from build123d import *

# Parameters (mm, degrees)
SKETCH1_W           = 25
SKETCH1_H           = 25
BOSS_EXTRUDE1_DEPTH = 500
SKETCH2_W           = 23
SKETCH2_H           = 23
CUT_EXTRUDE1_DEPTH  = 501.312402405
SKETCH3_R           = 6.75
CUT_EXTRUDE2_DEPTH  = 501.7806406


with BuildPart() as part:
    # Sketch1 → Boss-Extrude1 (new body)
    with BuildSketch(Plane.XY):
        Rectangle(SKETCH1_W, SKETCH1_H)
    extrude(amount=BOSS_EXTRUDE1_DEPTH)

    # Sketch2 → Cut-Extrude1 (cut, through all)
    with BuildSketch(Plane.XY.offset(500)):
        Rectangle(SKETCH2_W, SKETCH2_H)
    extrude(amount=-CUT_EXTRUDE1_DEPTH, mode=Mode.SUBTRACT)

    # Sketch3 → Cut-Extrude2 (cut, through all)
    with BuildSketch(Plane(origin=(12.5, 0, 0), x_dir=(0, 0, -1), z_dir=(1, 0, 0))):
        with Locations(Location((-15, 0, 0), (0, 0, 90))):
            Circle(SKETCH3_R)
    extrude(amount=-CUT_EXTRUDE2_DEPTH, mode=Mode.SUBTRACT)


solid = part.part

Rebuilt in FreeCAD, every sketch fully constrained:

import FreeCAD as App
import Part
import Sketcher
Q = App.Units.Quantity

doc = App.newDocument("Part")
body = doc.addObject("PartDesign::Body", "Body")

sketch1 = body.newObject("Sketcher::SketchObject", "Sketch")
sketch1.AttachmentSupport = (doc.getObject("XY_Plane"), [""])
sketch1.MapMode = "FlatFace"
sketch1.addGeometry([
    Part.LineSegment(App.Vector(-12, 12, 0), App.Vector(-12, -12, 0)),
    Part.LineSegment(App.Vector(-12, -12, 0), App.Vector(12, -12, 0)),
    Part.LineSegment(App.Vector(12, -12, 0), App.Vector(12, 12, 0)),
    Part.LineSegment(App.Vector(12, 12, 0), App.Vector(-12, 12, 0)),
], False)
sketch1.addConstraint([
    Sketcher.Constraint("Coincident", 0, 2, 1, 1),
    Sketcher.Constraint("Coincident", 1, 2, 2, 1),
    Sketcher.Constraint("Coincident", 2, 2, 3, 1),
    Sketcher.Constraint("Coincident", 3, 2, 0, 1),
    Sketcher.Constraint("Vertical", 0),
    Sketcher.Constraint("Horizontal", 1),
    Sketcher.Constraint("Vertical", 2),
    Sketcher.Constraint("Horizontal", 3),
    Sketcher.Constraint("Symmetric", 0, 2, 2, 2, -1, 1),
    Sketcher.Constraint("Equal", 3, 0),
    Sketcher.Constraint("DistanceX", 1, 1, 1, 2, Q("25 mm")),
])
pad1 = body.newObject("PartDesign::Pad", "Pad")
pad1.Profile = sketch1
pad1.Length = 500

sketch2 = body.newObject("Sketcher::SketchObject", "Sketch001")
sketch2.AttachmentSupport = (doc.getObject("XY_Plane"), [""])
sketch2.MapMode = "FlatFace"
sketch2.AttachmentOffset = App.Placement(App.Vector(0, 0, 500), App.Rotation())
sketch2.addGeometry([
    Part.LineSegment(App.Vector(-12, 12, 0), App.Vector(-12, -12, 0)),
    Part.LineSegment(App.Vector(-12, -12, 0), App.Vector(12, -12, 0)),
    Part.LineSegment(App.Vector(12, -12, 0), App.Vector(12, 12, 0)),
    Part.LineSegment(App.Vector(12, 12, 0), App.Vector(-12, 12, 0)),
], False)
sketch2.addConstraint([
    Sketcher.Constraint("Coincident", 0, 2, 1, 1),
    Sketcher.Constraint("Coincident", 1, 2, 2, 1),
    Sketcher.Constraint("Coincident", 2, 2, 3, 1),
    Sketcher.Constraint("Coincident", 3, 2, 0, 1),
    Sketcher.Constraint("Vertical", 0),
    Sketcher.Constraint("Horizontal", 1),
    Sketcher.Constraint("Vertical", 2),
    Sketcher.Constraint("Horizontal", 3),
    Sketcher.Constraint("Symmetric", 0, 2, 2, 2, -1, 1),
    Sketcher.Constraint("Equal", 3, 0),
    Sketcher.Constraint("DistanceX", 1, 1, 1, 2, Q("23 mm")),
])
pocket1 = body.newObject("PartDesign::Pocket", "Pocket")
pocket1.Profile = sketch2
pocket1.Type = "ThroughAll"

sketch3 = body.newObject("Sketcher::SketchObject", "Sketch002")
sketch3.AttachmentSupport = (doc.getObject("YZ_Plane"), [""])
sketch3.MapMode = "FlatFace"
sketch3.AttachmentOffset = App.Placement(App.Vector(0, 0, 12.5), App.Rotation())
sketch3.addGeometry(Part.Circle(App.Vector(0, 15, 0), App.Vector(0, 0, 1), 7), False)
sketch3.addConstraint([
    Sketcher.Constraint("PointOnObject", 0, 3, -2),
    Sketcher.Constraint("Diameter", 0, Q("13.5 mm")),
    Sketcher.Constraint("DistanceY", -1, 1, 0, 3, Q("15 mm")),
])
pocket2 = body.newObject("PartDesign::Pocket", "Pocket001")
pocket2.Profile = sketch3
pocket2.Type = "ThroughAll"

doc.recompute()
